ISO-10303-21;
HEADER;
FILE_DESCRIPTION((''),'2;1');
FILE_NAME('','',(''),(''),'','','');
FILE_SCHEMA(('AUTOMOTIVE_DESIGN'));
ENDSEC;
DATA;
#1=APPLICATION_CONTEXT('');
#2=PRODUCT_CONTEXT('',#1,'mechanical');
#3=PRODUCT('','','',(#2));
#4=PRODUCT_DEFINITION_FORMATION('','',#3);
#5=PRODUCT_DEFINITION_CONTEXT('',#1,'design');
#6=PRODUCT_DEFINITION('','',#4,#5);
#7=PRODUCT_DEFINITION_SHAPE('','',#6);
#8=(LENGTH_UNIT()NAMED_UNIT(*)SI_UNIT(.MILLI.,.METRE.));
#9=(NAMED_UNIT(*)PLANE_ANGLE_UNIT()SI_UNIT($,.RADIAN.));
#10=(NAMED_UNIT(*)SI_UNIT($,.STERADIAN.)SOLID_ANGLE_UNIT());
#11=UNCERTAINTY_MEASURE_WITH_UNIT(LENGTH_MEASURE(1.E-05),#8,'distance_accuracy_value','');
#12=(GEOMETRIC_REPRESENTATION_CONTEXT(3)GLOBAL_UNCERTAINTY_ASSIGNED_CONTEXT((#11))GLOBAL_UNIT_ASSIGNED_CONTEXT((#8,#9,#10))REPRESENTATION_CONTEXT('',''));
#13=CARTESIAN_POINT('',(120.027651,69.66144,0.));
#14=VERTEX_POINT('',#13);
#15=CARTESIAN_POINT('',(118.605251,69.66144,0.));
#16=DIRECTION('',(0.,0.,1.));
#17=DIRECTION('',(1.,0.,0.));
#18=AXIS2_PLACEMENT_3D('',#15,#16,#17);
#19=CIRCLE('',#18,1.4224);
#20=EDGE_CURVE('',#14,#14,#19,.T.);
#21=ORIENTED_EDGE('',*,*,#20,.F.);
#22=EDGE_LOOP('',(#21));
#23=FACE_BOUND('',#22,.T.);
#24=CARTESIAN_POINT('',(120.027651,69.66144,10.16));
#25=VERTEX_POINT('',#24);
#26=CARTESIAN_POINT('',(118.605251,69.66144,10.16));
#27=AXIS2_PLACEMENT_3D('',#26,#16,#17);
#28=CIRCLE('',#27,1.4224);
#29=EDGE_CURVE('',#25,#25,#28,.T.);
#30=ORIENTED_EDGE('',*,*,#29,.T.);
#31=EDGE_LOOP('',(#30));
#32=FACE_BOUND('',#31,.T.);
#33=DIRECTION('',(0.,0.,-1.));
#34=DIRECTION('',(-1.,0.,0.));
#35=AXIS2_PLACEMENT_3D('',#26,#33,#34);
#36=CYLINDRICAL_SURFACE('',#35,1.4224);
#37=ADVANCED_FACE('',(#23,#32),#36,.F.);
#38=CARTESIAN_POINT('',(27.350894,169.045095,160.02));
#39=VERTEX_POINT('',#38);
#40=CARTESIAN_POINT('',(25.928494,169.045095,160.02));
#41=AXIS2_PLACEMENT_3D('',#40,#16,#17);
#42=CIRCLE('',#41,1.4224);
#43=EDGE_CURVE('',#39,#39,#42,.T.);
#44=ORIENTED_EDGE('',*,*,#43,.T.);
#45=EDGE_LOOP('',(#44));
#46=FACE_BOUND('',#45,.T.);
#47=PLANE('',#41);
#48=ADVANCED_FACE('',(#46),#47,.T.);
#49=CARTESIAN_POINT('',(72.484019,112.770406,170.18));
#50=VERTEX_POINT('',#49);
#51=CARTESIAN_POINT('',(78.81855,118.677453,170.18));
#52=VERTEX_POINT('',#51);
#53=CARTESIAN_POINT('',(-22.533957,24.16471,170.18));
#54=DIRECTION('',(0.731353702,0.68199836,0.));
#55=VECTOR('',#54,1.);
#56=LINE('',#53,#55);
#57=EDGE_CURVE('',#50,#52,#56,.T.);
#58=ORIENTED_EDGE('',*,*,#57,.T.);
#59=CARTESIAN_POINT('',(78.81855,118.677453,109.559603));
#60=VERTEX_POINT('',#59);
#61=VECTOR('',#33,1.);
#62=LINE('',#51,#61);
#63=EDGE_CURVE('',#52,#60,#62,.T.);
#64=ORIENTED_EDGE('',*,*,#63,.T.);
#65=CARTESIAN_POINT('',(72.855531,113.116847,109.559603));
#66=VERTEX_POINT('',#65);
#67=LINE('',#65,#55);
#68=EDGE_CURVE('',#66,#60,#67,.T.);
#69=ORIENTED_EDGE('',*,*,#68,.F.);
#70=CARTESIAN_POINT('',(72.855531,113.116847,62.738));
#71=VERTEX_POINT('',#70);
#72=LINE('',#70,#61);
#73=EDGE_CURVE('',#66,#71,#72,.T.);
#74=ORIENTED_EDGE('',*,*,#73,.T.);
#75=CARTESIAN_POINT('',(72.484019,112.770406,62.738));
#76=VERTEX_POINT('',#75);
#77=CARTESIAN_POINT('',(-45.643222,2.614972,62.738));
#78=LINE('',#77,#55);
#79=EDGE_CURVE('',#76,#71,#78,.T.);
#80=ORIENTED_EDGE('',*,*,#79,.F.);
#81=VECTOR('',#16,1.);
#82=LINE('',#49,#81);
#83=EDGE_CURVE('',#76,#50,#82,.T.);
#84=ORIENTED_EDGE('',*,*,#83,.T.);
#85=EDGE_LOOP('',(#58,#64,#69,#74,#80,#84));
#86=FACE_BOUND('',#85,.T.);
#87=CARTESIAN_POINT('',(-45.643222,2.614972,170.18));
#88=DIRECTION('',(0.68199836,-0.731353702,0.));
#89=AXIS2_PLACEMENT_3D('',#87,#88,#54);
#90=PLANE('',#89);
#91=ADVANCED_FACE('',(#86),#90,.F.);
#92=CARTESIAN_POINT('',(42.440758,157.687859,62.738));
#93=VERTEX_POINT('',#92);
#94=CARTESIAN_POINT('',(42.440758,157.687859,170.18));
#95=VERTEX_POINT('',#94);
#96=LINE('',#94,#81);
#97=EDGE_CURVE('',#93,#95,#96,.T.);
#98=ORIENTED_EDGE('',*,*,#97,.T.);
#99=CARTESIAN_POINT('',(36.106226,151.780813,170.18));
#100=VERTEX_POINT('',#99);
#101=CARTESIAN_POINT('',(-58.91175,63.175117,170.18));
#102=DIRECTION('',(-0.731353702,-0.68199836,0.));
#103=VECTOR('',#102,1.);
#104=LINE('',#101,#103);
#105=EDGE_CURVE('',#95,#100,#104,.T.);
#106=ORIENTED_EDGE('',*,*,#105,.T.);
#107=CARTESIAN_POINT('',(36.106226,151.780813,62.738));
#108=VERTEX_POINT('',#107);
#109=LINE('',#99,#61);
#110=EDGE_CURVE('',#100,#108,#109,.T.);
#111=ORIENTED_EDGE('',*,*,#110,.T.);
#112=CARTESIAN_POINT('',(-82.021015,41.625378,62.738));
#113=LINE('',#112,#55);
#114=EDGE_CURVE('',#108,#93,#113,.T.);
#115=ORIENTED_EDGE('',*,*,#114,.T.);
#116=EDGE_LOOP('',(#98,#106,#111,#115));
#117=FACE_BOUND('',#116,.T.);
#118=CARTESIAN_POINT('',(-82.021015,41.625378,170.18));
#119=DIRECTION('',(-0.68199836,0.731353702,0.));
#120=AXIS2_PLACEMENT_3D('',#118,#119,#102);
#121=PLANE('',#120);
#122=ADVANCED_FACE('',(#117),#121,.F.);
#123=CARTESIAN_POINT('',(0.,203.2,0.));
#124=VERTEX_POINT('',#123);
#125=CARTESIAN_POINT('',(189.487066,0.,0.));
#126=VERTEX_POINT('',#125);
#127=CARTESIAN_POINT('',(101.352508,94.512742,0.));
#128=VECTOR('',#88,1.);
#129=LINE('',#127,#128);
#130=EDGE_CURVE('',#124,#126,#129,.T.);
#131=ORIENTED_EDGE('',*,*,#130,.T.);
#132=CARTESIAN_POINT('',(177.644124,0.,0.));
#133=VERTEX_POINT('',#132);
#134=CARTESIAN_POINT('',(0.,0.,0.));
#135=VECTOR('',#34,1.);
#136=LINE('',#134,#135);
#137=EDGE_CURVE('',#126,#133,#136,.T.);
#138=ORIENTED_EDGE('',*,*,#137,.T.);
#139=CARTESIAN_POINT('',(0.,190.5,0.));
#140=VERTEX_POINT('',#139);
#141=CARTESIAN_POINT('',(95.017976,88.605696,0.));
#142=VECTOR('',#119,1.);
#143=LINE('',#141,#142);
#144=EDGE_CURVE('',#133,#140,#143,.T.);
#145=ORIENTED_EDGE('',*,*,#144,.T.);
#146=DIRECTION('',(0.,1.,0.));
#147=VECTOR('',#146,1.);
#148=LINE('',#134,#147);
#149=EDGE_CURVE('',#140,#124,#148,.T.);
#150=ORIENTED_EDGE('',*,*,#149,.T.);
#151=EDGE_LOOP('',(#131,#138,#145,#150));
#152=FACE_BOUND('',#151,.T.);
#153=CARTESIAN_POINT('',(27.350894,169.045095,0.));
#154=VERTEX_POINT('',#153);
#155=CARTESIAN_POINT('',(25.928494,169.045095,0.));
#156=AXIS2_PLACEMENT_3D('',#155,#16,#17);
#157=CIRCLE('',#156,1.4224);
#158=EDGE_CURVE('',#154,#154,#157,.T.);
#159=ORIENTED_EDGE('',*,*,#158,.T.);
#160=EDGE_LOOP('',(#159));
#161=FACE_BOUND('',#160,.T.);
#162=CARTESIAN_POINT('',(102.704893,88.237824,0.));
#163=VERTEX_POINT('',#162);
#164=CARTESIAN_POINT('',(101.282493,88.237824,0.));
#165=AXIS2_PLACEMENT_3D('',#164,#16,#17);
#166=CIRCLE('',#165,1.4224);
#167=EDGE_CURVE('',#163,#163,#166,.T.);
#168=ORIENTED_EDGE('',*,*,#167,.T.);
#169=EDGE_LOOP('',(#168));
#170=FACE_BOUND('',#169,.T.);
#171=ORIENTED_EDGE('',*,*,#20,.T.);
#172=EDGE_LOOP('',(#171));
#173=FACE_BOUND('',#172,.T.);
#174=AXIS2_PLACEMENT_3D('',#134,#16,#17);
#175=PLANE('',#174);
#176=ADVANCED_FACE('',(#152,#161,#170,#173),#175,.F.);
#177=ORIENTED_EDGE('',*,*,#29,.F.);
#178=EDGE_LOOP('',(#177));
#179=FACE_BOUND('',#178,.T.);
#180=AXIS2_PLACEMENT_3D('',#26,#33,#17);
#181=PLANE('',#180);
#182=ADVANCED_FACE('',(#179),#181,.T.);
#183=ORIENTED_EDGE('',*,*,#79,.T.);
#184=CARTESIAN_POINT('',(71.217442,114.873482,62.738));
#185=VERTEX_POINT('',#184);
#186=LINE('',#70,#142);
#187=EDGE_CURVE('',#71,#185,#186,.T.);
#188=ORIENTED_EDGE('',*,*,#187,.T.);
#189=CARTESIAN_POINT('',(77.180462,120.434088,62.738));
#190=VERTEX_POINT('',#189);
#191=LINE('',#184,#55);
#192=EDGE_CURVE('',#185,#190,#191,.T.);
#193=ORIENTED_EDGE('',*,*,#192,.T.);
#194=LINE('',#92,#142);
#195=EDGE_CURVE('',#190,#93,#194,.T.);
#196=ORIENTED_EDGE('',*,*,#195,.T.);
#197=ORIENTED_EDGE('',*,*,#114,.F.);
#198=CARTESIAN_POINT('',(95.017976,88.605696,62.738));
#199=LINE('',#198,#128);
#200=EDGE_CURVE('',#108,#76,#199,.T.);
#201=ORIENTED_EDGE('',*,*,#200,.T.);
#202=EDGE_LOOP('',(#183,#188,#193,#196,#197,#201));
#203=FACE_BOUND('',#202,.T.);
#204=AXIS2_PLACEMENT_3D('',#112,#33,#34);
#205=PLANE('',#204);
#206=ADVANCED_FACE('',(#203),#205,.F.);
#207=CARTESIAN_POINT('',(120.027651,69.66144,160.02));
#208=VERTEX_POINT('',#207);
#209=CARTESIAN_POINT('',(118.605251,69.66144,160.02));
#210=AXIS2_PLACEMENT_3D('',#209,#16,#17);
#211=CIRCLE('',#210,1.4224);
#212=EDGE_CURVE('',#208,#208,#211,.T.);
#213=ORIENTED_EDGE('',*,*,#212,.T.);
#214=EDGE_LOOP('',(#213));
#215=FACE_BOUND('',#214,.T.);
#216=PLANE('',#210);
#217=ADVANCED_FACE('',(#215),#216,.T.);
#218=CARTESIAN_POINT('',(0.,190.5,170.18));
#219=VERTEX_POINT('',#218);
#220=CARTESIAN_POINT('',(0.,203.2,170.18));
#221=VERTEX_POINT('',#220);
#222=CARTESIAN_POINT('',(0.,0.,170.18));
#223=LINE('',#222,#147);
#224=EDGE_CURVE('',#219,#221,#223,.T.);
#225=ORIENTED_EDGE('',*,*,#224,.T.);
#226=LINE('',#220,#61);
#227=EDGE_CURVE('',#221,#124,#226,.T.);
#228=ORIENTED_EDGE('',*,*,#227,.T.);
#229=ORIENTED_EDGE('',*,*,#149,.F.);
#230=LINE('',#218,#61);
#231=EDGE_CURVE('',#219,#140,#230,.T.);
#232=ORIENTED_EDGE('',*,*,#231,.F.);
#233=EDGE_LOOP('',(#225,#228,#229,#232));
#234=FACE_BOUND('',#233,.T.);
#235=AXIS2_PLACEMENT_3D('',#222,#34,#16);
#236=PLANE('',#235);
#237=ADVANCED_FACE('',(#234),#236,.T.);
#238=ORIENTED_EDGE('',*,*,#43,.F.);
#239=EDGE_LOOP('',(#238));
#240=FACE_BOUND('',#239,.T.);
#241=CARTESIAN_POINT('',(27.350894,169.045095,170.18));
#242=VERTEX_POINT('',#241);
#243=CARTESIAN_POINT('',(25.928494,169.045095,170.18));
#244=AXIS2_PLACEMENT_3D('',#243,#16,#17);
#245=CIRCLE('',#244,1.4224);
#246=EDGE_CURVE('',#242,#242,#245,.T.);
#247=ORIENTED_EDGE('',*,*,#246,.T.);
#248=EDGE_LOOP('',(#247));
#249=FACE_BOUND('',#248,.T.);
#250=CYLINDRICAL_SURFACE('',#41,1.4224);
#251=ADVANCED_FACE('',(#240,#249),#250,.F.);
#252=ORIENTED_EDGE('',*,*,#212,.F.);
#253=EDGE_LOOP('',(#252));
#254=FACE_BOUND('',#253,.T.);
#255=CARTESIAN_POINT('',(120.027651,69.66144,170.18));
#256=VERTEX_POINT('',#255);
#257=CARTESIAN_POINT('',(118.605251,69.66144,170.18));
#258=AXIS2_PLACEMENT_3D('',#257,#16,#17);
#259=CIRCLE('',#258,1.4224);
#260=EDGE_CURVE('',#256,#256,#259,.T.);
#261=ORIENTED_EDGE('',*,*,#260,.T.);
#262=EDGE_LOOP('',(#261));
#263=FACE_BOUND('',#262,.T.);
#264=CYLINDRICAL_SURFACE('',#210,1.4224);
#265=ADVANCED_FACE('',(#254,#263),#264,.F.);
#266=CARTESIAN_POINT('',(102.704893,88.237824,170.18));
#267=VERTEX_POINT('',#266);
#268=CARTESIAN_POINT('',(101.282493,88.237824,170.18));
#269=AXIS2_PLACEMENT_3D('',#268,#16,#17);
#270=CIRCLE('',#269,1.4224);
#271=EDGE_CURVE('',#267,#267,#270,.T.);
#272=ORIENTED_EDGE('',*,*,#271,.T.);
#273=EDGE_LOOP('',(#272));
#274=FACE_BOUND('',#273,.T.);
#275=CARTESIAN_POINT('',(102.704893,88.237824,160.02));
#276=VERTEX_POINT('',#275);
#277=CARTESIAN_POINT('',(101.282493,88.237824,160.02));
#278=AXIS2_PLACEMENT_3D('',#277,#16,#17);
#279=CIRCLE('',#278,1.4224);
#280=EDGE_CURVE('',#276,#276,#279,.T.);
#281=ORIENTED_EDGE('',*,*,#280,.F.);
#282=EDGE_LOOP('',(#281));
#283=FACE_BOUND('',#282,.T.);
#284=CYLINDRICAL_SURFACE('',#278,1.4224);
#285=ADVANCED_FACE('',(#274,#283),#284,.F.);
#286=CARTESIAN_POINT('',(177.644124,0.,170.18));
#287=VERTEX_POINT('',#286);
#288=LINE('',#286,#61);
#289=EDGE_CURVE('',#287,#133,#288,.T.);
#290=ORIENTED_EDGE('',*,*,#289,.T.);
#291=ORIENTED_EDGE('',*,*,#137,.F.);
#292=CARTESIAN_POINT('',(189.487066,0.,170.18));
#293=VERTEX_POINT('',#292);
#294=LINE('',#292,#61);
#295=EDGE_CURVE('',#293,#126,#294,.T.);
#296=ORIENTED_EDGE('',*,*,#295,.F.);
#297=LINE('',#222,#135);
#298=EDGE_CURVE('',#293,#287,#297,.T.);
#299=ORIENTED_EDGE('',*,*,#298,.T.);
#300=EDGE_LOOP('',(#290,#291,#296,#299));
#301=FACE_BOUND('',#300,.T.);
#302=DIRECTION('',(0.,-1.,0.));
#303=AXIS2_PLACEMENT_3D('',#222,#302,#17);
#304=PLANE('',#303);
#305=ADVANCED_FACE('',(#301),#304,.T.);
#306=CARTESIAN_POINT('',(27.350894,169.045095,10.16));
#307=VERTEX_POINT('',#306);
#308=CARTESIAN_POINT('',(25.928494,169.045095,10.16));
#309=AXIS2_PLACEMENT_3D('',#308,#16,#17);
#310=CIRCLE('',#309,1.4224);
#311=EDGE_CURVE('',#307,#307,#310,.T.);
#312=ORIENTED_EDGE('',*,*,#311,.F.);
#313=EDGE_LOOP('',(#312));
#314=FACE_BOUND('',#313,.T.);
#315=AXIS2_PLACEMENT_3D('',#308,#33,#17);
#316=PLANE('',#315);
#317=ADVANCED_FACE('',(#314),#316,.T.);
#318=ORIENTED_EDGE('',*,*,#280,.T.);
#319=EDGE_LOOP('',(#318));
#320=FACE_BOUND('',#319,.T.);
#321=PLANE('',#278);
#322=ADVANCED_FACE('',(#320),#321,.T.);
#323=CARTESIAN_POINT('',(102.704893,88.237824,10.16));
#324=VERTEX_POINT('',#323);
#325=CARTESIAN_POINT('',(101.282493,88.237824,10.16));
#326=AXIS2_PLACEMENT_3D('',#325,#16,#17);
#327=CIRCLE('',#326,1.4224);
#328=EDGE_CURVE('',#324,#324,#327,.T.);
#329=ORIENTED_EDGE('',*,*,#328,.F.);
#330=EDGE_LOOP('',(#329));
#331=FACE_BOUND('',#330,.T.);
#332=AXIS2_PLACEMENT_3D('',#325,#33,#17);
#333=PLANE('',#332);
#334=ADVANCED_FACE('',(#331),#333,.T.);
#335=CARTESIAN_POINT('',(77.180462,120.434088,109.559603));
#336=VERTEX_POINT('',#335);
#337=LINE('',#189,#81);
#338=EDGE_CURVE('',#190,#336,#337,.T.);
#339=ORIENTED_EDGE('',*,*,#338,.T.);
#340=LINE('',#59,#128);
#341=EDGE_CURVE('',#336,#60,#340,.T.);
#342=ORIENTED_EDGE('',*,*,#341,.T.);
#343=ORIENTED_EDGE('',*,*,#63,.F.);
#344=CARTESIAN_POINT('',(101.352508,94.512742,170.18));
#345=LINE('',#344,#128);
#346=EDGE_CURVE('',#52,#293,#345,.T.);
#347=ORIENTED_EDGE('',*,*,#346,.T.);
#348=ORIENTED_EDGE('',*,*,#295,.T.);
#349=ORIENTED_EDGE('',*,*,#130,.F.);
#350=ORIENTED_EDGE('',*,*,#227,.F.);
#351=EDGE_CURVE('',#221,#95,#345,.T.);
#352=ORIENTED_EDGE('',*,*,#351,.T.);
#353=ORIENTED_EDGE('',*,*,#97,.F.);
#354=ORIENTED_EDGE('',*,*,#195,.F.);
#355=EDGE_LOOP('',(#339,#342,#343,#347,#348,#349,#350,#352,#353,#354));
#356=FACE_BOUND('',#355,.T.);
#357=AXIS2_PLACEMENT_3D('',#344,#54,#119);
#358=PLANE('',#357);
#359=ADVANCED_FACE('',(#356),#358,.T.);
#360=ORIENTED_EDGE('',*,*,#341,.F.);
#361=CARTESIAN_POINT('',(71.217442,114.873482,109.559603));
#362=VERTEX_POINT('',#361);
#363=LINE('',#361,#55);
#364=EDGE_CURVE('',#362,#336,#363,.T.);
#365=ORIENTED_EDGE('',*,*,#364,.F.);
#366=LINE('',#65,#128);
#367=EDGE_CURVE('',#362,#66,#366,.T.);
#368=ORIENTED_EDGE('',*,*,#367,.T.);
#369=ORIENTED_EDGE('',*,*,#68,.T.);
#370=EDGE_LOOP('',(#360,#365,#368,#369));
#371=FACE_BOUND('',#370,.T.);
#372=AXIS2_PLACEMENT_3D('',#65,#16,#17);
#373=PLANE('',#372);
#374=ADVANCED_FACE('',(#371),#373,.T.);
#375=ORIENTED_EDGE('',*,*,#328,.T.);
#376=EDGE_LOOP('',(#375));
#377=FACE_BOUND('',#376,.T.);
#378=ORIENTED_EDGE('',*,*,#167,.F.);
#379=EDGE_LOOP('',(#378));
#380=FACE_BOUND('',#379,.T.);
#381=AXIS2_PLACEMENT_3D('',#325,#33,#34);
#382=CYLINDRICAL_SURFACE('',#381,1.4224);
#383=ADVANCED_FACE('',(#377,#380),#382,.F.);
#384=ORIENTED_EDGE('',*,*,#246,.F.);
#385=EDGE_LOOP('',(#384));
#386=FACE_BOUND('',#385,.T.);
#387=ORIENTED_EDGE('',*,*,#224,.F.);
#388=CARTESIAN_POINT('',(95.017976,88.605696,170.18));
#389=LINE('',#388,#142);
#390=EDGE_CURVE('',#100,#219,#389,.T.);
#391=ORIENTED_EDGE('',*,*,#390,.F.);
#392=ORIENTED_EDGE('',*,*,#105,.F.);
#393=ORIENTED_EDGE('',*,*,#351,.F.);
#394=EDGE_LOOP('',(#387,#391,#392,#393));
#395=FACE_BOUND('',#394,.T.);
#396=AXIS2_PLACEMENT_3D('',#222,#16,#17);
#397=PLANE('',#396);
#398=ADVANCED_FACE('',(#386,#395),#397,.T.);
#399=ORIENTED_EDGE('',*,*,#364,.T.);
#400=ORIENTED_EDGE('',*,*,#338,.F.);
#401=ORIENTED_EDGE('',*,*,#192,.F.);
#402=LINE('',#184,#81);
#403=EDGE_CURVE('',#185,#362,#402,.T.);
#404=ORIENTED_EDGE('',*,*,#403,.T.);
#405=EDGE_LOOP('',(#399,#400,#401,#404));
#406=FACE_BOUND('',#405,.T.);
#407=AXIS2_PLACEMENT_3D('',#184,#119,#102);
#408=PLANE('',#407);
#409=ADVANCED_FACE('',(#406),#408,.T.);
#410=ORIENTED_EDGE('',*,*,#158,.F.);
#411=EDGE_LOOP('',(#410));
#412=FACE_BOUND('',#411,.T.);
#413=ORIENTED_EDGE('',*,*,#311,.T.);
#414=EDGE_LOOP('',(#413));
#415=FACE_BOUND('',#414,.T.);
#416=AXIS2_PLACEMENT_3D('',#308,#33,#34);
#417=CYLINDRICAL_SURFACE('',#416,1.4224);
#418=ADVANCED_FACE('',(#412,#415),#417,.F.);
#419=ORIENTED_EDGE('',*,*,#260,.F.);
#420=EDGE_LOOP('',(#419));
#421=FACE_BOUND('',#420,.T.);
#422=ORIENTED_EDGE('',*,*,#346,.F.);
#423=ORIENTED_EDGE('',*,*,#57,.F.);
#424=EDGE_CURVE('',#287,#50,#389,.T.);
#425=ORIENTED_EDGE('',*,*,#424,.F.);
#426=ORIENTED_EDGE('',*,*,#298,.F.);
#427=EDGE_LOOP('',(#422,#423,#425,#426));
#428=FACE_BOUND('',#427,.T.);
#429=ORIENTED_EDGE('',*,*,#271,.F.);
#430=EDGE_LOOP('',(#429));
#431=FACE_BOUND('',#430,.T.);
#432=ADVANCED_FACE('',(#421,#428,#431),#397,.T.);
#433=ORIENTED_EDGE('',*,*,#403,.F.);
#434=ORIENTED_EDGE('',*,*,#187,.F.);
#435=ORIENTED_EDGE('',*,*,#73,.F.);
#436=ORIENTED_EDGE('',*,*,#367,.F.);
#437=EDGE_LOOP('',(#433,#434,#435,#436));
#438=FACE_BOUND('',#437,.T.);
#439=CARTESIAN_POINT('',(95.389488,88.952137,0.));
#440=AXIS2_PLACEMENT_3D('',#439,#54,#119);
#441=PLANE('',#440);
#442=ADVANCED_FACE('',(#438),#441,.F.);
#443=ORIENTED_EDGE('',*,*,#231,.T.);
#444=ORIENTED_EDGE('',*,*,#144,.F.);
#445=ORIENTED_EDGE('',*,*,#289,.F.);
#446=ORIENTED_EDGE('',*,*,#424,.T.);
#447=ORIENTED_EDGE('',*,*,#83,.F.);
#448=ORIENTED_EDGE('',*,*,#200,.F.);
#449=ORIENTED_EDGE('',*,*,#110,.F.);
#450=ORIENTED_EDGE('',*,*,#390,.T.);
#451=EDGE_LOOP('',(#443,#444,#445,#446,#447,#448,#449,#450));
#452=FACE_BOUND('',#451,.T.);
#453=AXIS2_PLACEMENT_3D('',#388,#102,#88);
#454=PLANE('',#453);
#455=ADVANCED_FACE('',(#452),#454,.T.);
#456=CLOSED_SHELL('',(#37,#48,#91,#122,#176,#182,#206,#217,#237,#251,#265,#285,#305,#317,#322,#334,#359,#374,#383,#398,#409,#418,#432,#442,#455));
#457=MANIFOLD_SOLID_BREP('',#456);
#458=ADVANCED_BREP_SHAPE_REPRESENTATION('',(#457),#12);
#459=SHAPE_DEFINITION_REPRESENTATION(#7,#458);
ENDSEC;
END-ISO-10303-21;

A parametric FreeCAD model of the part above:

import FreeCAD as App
import Part
import Sketcher
Q = App.Units.Quantity


def add_polygon(sketch, points):
    """Adds a closed chain of lines whose ends are joined by coincident constraints."""
    first, n = sketch.GeometryCount, len(points)
    for a, b in zip(points, points[1:] + points[:1]):
        sketch.addGeometry(Part.LineSegment(App.Vector(*a, 0), App.Vector(*b, 0)), False)
    for i in range(n):
        sketch.addConstraint(Sketcher.Constraint("Coincident", first + i, 2, first + (i + 1) % n, 1))

doc = App.newDocument("Part")
body = doc.addObject("PartDesign::Body", "Body")

# Sketch on XY plane
sketch1 = doc.addObject("Sketcher::SketchObject", "Sketch")
body.addObject(sketch1)
sketch1.AttachmentSupport = (doc.XY_Plane, [""])
sketch1.MapMode = "FlatFace"
add_polygon(sketch1, [(177.644124, 0), (189.487066, 0), (0, 203.2), (0, 190.5)])  # lines 0-3
sketch1.addConstraint([
    Sketcher.Constraint("Horizontal", 0),
    Sketcher.Constraint("Vertical", 2),
    Sketcher.Constraint("PointOnObject", 0, 2, -1),
    Sketcher.Constraint("PointOnObject", 1, 2, -2),
    Sketcher.Constraint("Parallel", 1, 3),
    Sketcher.Constraint("DistanceY", 2, 2, 2, 1, Q("0.5 in")),
    Sketcher.Constraint("DistanceY", -1, 1, 1, 2, Q("8 in")),
    Sketcher.Constraint("Angle", 1, Q("133 deg")),
])
pad1 = doc.addObject("PartDesign::Pad", "Pad")
body.addObject(pad1)
pad1.Profile = sketch1
pad1.Length = Q("6.7 in")

# Sketch on an angled plane
sketch2 = doc.addObject("Sketcher::SketchObject", "Sketch001")
body.addObject(sketch2)
sketch2.Placement = App.Placement(App.Vector(101.352508, 94.512742, 0), App.Rotation(App.Vector(0, 0, -1), App.Vector(-0.68199836, 0.731353702, 0), App.Vector(0.731353702, 0.68199836, 0), "ZXY"))
add_polygon(sketch2, [(-170.18, 86.381072), (-170.18, 33.041072), (-62.738, 33.041072), (-62.738, 86.381072)])  # lines 0-3
sketch2.addConstraint([
    Sketcher.Constraint("Vertical", 0),
    Sketcher.Constraint("Horizontal", 1),
    Sketcher.Constraint("Vertical", 2),
    Sketcher.Constraint("Horizontal", 3),
    Sketcher.Constraint("DistanceY", 0, 2, 0, 1, Q("2.1 in")),
    Sketcher.Constraint("DistanceX", 1, 1, 1, 2, Q("4.23 in")),
    Sketcher.Constraint("DistanceX", 0, 2, -1, 1, Q("6.7 in")),
    Sketcher.Constraint("DistanceY", -1, 1, 0, 2, Q("33.041072 mm")),
])
pocket1 = doc.addObject("PartDesign::Pocket", "Pocket")
body.addObject(pocket1)
pocket1.Profile = sketch2
pocket1.Length = Q("6.7 in")

# Sketch on an angled plane
sketch3 = doc.addObject("Sketcher::SketchObject", "Sketch002")
body.addObject(sketch3)
sketch3.Placement = App.Placement(App.Vector(101.352508, 94.512742, 0), App.Rotation(App.Vector(0, 0, -1), App.Vector(-0.68199836, 0.731353702, 0), App.Vector(0.731353702, 0.68199836, 0), "ZXY"))
add_polygon(sketch3, [(-109.559603, 35.442968), (-109.559603, 33.041072), (-62.738, 33.041072), (-62.738, 35.442968)])  # lines 0-3
sketch3.addConstraint([
    Sketcher.Constraint("Vertical", 0),
    Sketcher.Constraint("Horizontal", 1),
    Sketcher.Constraint("Vertical", 2),
    Sketcher.Constraint("Horizontal", 3),
    Sketcher.Constraint("DistanceX", 1, 2, -1, 1, Q("2.47 in")),
    Sketcher.Constraint("DistanceX", 1, 1, 1, 2, Q("46.821603 mm")),
    Sketcher.Constraint("DistanceY", 0, 2, 0, 1, Q("2.401895 mm")),
    Sketcher.Constraint("DistanceY", -1, 1, 0, 2, Q("33.041072 mm")),
])
pad2 = doc.addObject("PartDesign::Pad", "Pad001")
body.addObject(pad2)
pad2.Profile = sketch3
pad2.Length = Q("0.321 in")
pad2.Reversed = True

# Sketch on XY plane
sketch4 = doc.addObject("Sketcher::SketchObject", "Sketch003")
body.addObject(sketch4)
sketch4.AttachmentSupport = (doc.XY_Plane, [""])
sketch4.MapMode = "FlatFace"
sketch4.AttachmentOffset = App.Placement(App.Vector(0, 0, 6.7 * 25.4), App.Rotation())
sketch4.addGeometry([
    Part.Circle(App.Vector(25.928494, 169.045095, 0), App.Vector(0, 0, 1), 1.4224),
    Part.Circle(App.Vector(101.282493, 88.237824, 0), App.Vector(0, 0, 1), 1.4224),
    Part.Circle(App.Vector(118.605251, 69.66144, 0), App.Vector(0, 0, 1), 1.4224),
], False)
sketch4.addConstraint([
    Sketcher.Constraint("Equal", 0, 1),
    Sketcher.Constraint("Equal", 1, 2),
    Sketcher.Constraint("Diameter", 0, Q("0.112 in")),
    Sketcher.Constraint("DistanceX", 0, 3, 1, 3, Q("75.353999 mm")),
    Sketcher.Constraint("DistanceX", -1, 1, 2, 3, Q("118.605251 mm")),
    Sketcher.Constraint("DistanceY", -1, 1, 2, 3, Q("69.66144 mm")),
    Sketcher.Constraint("DistanceY", 1, 3, 0, 3, Q("80.80727 mm")),
    Sketcher.Constraint("DistanceX", 1, 3, 2, 3, Q("17.322758 mm")),
    Sketcher.Constraint("DistanceY", -1, 1, 0, 3, Q("169.045095 mm")),
])
pocket2 = doc.addObject("PartDesign::Pocket", "Pocket001")
body.addObject(pocket2)
pocket2.Profile = sketch4
pocket2.Length = Q("0.4 in")
doc.recompute()

datumplane = doc.addObject("PartDesign::Plane", "DatumPlane")
body.addObject(datumplane)
datumplane.AttachmentSupport = (doc.XY_Plane, [""])
datumplane.MapMode = "FlatFace"
datumplane.AttachmentOffset = App.Placement(App.Vector(0, 0, 3.35 * 25.4), App.Rotation())
mirrored = doc.addObject("PartDesign::Mirrored", "Mirrored")
body.addObject(mirrored)
mirrored.Originals = [pocket2]
mirrored.MirrorPlane = (datumplane, [""])
body.Tip = mirrored

doc.recompute()
